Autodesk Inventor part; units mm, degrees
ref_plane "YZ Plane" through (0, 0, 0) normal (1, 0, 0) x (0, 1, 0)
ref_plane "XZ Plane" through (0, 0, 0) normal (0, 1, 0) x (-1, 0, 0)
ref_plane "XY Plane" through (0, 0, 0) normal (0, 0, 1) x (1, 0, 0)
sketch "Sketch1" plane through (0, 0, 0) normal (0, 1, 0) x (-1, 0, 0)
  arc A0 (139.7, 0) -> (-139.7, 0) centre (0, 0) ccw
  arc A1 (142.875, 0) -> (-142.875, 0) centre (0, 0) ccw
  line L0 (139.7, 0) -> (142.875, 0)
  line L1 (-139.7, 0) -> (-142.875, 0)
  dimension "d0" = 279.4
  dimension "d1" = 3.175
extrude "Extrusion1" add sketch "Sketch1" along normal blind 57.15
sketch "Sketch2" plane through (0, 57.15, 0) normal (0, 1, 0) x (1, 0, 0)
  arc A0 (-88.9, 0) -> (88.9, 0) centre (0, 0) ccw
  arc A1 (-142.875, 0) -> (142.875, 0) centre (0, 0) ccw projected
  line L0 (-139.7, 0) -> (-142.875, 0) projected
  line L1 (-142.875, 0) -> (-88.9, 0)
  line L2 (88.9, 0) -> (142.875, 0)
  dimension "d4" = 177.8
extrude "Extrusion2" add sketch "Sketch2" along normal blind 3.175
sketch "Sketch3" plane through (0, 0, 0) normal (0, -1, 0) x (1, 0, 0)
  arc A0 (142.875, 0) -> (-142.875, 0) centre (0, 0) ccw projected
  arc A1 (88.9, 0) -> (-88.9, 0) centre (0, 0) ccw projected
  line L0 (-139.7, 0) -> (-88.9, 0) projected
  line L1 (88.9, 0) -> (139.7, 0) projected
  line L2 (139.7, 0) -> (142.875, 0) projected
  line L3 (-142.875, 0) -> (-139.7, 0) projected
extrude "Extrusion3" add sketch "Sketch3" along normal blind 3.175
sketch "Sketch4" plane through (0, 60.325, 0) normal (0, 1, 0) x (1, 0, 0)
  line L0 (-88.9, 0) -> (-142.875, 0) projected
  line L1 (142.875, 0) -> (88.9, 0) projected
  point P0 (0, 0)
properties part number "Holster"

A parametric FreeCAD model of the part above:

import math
import FreeCAD as App
import Part
import Sketcher
from FreeCAD import Vector
Q = App.Units.Quantity

doc = App.newDocument("Part")
params = doc.addObject("Spreadsheet::Sheet", "Params")
for row, (alias, value) in enumerate([
    ("sketch1_radius", "5.5 in"),
    ("sketch1_width", "0.125 in"),
    ("pad1_length", "2.25 in"),
    ("sketch2_radius", "3.5 in"),
    ("sketch2_radius2", "5.625 in"),
    ("pad2_length", "0.125 in"),
    ("sketch3_radius", "3.5 in"),
    ("sketch3_radius2", "5.625 in"),
    ("pad3_length", "0.125 in"),
], start=1):
    params.set(f"A{row}", alias)
    params.set(f"B{row}", "=" + value)
    params.setAlias(f"B{row}", alias)

body = doc.addObject("PartDesign::Body", "Body")

# Sketch on XZ plane
sketch1 = body.newObject("Sketcher::SketchObject", "Sketch")
sketch1.AttachmentSupport = (doc.getObject("XZ_Plane"), [""])
sketch1.MapMode = "FlatFace"
sketch1.addGeometry([
    Part.ArcOfCircle(Part.Circle(Vector(0, 0, 0), Vector(0, 0, 1), 139.7), math.radians(0), math.radians(180)),
    Part.LineSegment(Vector(-139.7, 0, 0), Vector(-142.875, 0, 0)),
    Part.ArcOfCircle(Part.Circle(Vector(0, 0, 0), Vector(0, 0, 1), 142.875), math.radians(0), math.radians(180)),
    Part.LineSegment(Vector(142.875, 0, 0), Vector(139.7, 0, 0)),
], False)
sketch1.addConstraint([
    Sketcher.Constraint("Coincident", 0, 2, 1, 1),
    Sketcher.Constraint("Coincident", 1, 2, 2, 2),
    Sketcher.Constraint("Coincident", 2, 1, 3, 1),
    Sketcher.Constraint("Coincident", 3, 2, 0, 1),
    Sketcher.Constraint("Horizontal", 1),
    Sketcher.Constraint("Horizontal", 3),
    Sketcher.Constraint("Coincident", 0, 3, -1, 1),
    Sketcher.Constraint("Coincident", 2, 3, -1, 1),
    Sketcher.Constraint("PointOnObject", 0, 2, -1),
    Sketcher.Constraint("PointOnObject", 2, 1, -1),
    Sketcher.Constraint("Radius", 0, Q("5.5 in")),
    Sketcher.Constraint("DistanceX", 1, 2, 1, 1, Q("0.125 in")),
])
sketch1.setExpression("Constraints[10]", "Params.sketch1_radius")
sketch1.setExpression("Constraints[11]", "Params.sketch1_width")
pad1 = body.newObject("PartDesign::Pad", "Pad")
pad1.Profile = sketch1
pad1.setExpression("Length", "Params.pad1_length")
pad1.Reversed = True

# Sketch on XZ plane
sketch2 = body.newObject("Sketcher::SketchObject", "Sketch001")
sketch2.AttachmentSupport = (doc.getObject("XZ_Plane"), [""])
sketch2.MapMode = "FlatFace"
sketch2.AttachmentOffset = App.Placement(Vector(0, 0, -2.25 * 25.4), App.Rotation())
sketch2.addGeometry([
    Part.ArcOfCircle(Part.Circle(Vector(0, 0, 0), Vector(0, 0, 1), 88.9), math.radians(0), math.radians(180)),
    Part.LineSegment(Vector(-88.9, 0, 0), Vector(-142.875, 0, 0)),
    Part.ArcOfCircle(Part.Circle(Vector(0, 0, 0), Vector(0, 0, 1), 142.875), math.radians(0), math.radians(180)),
    Part.LineSegment(Vector(142.875, 0, 0), Vector(88.9, 0, 0)),
], False)
sketch2.addConstraint([
    Sketcher.Constraint("Coincident", 0, 2, 1, 1),
    Sketcher.Constraint("Coincident", 1, 2, 2, 2),
    Sketcher.Constraint("Coincident", 2, 1, 3, 1),
    Sketcher.Constraint("Coincident", 3, 2, 0, 1),
    Sketcher.Constraint("Horizontal", 1),
    Sketcher.Constraint("Horizontal", 3),
    Sketcher.Constraint("Coincident", 0, 3, -1, 1),
    Sketcher.Constraint("Coincident", 2, 3, -1, 1),
    Sketcher.Constraint("PointOnObject", 0, 2, -1),
    Sketcher.Constraint("PointOnObject", 2, 1, -1),
    Sketcher.Constraint("Radius", 0, Q("3.5 in")),
    Sketcher.Constraint("Radius", 2, Q("5.625 in")),
])
sketch2.setExpression("Constraints[10]", "Params.sketch2_radius")
sketch2.setExpression("Constraints[11]", "Params.sketch2_radius2")
pad2 = body.newObject("PartDesign::Pad", "Pad001")
pad2.Profile = sketch2
pad2.setExpression("Length", "Params.pad2_length")
pad2.Reversed = True

# Sketch on XZ plane
sketch3 = body.newObject("Sketcher::SketchObject", "Sketch002")
sketch3.AttachmentSupport = (doc.getObject("XZ_Plane"), [""])
sketch3.MapMode = "FlatFace"
sketch3.addGeometry([
    Part.LineSegment(Vector(88.9, 0, 0), Vector(142.875, 0, 0)),
    Part.ArcOfCircle(Part.Circle(Vector(0, 0, 0), Vector(0, 0, 1), 142.875), math.radians(0), math.radians(180)),
    Part.LineSegment(Vector(-142.875, 0, 0), Vector(-88.9, 0, 0)),
    Part.ArcOfCircle(Part.Circle(Vector(0, 0, 0), Vector(0, 0, 1), 88.9), math.radians(0), math.radians(180)),
], False)
sketch3.addConstraint([
    Sketcher.Constraint("Coincident", 0, 2, 1, 1),
    Sketcher.Constraint("Coincident", 1, 2, 2, 1),
    Sketcher.Constraint("Coincident", 2, 2, 3, 2),
    Sketcher.Constraint("Coincident", 3, 1, 0, 1),
    Sketcher.Constraint("Horizontal", 0),
    Sketcher.Constraint("Horizontal", 2),
    Sketcher.Constraint("Coincident", 1, 3, -1, 1),
    Sketcher.Constraint("Coincident", 3, 3, -1, 1),
    Sketcher.Constraint("PointOnObject", 0, 2, -1),
    Sketcher.Constraint("PointOnObject", 1, 2, -1),
    Sketcher.Constraint("Radius", 3, Q("3.5 in")),
    Sketcher.Constraint("Radius", 1, Q("5.625 in")),
])
sketch3.setExpression("Constraints[10]", "Params.sketch3_radius")
sketch3.setExpression("Constraints[11]", "Params.sketch3_radius2")
pad3 = body.newObject("PartDesign::Pad", "Pad002")
pad3.Profile = sketch3
pad3.setExpression("Length", "Params.pad3_length")

doc.recompute()
